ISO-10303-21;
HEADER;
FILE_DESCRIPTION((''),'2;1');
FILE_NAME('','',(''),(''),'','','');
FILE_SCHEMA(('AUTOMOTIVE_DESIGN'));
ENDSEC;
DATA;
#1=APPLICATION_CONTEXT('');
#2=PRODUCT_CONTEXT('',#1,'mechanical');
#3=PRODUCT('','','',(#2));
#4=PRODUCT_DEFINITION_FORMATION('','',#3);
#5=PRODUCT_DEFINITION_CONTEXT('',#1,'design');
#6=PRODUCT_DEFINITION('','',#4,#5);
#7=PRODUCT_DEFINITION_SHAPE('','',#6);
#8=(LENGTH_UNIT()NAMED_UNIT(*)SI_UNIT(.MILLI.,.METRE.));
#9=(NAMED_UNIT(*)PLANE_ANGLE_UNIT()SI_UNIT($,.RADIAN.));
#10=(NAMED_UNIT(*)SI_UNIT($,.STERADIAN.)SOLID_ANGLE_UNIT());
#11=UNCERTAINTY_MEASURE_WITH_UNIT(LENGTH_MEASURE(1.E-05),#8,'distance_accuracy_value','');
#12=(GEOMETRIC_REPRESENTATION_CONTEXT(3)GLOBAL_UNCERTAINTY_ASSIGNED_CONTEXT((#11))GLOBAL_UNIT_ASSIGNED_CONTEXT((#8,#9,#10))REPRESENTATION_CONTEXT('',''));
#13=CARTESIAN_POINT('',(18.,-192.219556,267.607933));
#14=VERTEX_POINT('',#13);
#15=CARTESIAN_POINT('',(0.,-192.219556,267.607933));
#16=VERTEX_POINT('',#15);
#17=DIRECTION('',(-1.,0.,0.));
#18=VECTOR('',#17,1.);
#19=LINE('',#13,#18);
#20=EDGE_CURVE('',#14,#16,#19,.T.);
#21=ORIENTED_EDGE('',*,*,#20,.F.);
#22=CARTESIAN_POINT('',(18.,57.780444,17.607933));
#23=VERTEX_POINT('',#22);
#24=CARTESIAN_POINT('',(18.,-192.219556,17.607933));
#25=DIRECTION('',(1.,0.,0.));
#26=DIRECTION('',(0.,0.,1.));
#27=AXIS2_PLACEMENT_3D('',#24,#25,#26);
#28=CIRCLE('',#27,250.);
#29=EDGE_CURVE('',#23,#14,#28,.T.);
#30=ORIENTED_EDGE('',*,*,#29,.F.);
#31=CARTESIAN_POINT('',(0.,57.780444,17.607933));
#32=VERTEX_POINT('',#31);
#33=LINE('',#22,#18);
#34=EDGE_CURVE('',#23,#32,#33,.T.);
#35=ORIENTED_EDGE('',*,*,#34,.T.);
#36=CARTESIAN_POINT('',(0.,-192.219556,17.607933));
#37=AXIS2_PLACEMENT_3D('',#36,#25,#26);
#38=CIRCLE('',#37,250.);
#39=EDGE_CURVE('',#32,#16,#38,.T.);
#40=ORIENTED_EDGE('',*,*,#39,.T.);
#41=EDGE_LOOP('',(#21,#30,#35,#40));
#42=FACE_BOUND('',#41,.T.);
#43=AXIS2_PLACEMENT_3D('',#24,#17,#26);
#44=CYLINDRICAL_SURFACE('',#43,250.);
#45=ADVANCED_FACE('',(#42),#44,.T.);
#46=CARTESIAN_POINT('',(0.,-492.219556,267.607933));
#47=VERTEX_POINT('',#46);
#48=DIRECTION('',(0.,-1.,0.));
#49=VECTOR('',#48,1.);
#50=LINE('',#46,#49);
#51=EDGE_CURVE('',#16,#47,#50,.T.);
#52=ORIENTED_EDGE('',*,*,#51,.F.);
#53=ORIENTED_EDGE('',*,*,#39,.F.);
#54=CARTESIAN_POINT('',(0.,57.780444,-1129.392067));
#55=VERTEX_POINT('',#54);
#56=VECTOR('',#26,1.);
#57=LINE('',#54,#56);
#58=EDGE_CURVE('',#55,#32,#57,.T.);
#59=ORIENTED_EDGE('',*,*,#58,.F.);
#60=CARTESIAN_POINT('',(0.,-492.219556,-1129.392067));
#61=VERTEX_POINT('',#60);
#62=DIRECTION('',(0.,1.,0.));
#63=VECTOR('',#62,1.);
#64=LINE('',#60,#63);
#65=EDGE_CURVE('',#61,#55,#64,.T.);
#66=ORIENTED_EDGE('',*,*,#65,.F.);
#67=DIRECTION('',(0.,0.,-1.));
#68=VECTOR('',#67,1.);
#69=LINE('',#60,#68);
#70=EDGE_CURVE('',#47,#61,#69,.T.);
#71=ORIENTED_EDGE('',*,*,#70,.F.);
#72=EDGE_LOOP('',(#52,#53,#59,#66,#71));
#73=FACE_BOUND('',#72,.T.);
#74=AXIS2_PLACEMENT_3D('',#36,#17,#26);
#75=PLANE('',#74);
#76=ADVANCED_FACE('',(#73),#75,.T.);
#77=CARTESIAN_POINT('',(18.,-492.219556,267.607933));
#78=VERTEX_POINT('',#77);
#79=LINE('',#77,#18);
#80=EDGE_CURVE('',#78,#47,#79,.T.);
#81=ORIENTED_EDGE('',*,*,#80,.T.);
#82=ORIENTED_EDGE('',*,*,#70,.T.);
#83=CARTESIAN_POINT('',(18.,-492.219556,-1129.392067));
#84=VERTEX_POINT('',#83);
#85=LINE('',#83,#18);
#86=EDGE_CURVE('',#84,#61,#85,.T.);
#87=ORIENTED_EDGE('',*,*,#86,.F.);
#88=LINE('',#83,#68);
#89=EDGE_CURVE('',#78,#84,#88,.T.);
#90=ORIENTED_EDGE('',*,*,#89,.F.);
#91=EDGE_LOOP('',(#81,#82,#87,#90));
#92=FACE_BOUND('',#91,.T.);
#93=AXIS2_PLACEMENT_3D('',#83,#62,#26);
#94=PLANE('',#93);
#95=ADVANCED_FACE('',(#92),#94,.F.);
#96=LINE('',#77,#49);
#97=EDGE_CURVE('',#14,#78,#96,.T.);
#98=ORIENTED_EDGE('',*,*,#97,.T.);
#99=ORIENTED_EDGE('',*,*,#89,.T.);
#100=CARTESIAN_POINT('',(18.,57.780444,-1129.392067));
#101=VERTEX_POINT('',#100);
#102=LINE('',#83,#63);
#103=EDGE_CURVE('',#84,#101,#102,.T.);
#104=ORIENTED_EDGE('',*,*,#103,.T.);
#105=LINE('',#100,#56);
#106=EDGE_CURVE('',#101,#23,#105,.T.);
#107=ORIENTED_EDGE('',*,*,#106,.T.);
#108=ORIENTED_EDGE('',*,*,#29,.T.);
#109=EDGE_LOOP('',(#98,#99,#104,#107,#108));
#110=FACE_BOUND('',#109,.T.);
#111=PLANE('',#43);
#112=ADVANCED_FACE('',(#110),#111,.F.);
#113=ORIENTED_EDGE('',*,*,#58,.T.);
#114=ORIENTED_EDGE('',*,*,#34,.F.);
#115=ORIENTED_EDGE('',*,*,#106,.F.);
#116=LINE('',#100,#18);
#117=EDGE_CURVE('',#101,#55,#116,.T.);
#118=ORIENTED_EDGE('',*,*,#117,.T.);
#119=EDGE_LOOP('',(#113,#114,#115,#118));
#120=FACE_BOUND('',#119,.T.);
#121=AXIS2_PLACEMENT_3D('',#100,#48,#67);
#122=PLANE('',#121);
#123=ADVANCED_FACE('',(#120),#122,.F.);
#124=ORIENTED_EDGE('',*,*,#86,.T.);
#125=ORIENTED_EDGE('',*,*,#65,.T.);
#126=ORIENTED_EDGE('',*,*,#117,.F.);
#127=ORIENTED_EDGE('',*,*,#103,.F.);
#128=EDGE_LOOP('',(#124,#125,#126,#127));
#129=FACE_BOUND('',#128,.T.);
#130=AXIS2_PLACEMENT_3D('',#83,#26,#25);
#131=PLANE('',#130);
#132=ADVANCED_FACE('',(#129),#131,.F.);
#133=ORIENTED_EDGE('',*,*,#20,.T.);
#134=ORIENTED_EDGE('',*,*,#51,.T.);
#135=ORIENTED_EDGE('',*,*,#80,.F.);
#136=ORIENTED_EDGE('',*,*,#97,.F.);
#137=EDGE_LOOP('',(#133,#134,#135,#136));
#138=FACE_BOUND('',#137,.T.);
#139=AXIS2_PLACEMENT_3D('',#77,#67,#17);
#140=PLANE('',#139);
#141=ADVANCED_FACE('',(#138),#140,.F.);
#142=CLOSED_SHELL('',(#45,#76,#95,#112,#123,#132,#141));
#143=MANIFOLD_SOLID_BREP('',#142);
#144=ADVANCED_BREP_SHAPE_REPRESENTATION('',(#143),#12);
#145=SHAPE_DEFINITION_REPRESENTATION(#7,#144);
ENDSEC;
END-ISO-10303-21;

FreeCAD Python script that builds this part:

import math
import FreeCAD as App
import Part
import Sketcher

V = App.Vector

doc = App.newDocument("Part")
body = doc.addObject("PartDesign::Body", "Body")

# Sketch on YZ plane
sketch1 = body.newObject("Sketcher::SketchObject", "Sketch")
sketch1.AttachmentSupport = (doc.getObject("YZ_Plane"), [""])
sketch1.MapMode = "FlatFace"
sketch1.addGeometry([
    Part.LineSegment(V(-492, 268, 0), V(-492, -1129, 0)),  # 0
    Part.LineSegment(V(-492, -1129, 0), V(58, -1129, 0)),  # 1
    Part.LineSegment(V(58, -1129, 0), V(58, 18, 0)),  # 2
    Part.ArcOfCircle(Part.Circle(V(-192, 18, 0), V(0, 0, 1), 250), math.radians(0), math.radians(90)),  # 3
    Part.LineSegment(V(-192, 268, 0), V(-492, 268, 0)),  # 4
], False)
sketch1.addConstraint([
    Sketcher.Constraint("Coincident", 0, 2, 1, 1),
    Sketcher.Constraint("Coincident", 1, 2, 2, 1),
    Sketcher.Constraint("Tangent", 2, 2, 3, 1),
    Sketcher.Constraint("Tangent", 3, 2, 4, 1),
    Sketcher.Constraint("Coincident", 4, 2, 0, 1),
    Sketcher.Constraint("Vertical", 0),
    Sketcher.Constraint("Horizontal", 1),
    Sketcher.Constraint("Vertical", 2),
    Sketcher.Constraint("Horizontal", 4),
    Sketcher.Constraint("Radius", 3, 250.0),
    Sketcher.Constraint("DistanceX", 1, 1, 1, 2, 550.0),
    Sketcher.Constraint("DistanceY", 0, 2, 0, 1, 1397.0),
    Sketcher.Constraint("DistanceX", 3, 3, -1, 1, 192.219556),
    Sketcher.Constraint("DistanceY", -1, 1, 3, 3, 17.607933),
])
pad1 = body.newObject("PartDesign::Pad", "Pad")
pad1.Profile = sketch1
pad1.Length = 18

doc.recompute()
